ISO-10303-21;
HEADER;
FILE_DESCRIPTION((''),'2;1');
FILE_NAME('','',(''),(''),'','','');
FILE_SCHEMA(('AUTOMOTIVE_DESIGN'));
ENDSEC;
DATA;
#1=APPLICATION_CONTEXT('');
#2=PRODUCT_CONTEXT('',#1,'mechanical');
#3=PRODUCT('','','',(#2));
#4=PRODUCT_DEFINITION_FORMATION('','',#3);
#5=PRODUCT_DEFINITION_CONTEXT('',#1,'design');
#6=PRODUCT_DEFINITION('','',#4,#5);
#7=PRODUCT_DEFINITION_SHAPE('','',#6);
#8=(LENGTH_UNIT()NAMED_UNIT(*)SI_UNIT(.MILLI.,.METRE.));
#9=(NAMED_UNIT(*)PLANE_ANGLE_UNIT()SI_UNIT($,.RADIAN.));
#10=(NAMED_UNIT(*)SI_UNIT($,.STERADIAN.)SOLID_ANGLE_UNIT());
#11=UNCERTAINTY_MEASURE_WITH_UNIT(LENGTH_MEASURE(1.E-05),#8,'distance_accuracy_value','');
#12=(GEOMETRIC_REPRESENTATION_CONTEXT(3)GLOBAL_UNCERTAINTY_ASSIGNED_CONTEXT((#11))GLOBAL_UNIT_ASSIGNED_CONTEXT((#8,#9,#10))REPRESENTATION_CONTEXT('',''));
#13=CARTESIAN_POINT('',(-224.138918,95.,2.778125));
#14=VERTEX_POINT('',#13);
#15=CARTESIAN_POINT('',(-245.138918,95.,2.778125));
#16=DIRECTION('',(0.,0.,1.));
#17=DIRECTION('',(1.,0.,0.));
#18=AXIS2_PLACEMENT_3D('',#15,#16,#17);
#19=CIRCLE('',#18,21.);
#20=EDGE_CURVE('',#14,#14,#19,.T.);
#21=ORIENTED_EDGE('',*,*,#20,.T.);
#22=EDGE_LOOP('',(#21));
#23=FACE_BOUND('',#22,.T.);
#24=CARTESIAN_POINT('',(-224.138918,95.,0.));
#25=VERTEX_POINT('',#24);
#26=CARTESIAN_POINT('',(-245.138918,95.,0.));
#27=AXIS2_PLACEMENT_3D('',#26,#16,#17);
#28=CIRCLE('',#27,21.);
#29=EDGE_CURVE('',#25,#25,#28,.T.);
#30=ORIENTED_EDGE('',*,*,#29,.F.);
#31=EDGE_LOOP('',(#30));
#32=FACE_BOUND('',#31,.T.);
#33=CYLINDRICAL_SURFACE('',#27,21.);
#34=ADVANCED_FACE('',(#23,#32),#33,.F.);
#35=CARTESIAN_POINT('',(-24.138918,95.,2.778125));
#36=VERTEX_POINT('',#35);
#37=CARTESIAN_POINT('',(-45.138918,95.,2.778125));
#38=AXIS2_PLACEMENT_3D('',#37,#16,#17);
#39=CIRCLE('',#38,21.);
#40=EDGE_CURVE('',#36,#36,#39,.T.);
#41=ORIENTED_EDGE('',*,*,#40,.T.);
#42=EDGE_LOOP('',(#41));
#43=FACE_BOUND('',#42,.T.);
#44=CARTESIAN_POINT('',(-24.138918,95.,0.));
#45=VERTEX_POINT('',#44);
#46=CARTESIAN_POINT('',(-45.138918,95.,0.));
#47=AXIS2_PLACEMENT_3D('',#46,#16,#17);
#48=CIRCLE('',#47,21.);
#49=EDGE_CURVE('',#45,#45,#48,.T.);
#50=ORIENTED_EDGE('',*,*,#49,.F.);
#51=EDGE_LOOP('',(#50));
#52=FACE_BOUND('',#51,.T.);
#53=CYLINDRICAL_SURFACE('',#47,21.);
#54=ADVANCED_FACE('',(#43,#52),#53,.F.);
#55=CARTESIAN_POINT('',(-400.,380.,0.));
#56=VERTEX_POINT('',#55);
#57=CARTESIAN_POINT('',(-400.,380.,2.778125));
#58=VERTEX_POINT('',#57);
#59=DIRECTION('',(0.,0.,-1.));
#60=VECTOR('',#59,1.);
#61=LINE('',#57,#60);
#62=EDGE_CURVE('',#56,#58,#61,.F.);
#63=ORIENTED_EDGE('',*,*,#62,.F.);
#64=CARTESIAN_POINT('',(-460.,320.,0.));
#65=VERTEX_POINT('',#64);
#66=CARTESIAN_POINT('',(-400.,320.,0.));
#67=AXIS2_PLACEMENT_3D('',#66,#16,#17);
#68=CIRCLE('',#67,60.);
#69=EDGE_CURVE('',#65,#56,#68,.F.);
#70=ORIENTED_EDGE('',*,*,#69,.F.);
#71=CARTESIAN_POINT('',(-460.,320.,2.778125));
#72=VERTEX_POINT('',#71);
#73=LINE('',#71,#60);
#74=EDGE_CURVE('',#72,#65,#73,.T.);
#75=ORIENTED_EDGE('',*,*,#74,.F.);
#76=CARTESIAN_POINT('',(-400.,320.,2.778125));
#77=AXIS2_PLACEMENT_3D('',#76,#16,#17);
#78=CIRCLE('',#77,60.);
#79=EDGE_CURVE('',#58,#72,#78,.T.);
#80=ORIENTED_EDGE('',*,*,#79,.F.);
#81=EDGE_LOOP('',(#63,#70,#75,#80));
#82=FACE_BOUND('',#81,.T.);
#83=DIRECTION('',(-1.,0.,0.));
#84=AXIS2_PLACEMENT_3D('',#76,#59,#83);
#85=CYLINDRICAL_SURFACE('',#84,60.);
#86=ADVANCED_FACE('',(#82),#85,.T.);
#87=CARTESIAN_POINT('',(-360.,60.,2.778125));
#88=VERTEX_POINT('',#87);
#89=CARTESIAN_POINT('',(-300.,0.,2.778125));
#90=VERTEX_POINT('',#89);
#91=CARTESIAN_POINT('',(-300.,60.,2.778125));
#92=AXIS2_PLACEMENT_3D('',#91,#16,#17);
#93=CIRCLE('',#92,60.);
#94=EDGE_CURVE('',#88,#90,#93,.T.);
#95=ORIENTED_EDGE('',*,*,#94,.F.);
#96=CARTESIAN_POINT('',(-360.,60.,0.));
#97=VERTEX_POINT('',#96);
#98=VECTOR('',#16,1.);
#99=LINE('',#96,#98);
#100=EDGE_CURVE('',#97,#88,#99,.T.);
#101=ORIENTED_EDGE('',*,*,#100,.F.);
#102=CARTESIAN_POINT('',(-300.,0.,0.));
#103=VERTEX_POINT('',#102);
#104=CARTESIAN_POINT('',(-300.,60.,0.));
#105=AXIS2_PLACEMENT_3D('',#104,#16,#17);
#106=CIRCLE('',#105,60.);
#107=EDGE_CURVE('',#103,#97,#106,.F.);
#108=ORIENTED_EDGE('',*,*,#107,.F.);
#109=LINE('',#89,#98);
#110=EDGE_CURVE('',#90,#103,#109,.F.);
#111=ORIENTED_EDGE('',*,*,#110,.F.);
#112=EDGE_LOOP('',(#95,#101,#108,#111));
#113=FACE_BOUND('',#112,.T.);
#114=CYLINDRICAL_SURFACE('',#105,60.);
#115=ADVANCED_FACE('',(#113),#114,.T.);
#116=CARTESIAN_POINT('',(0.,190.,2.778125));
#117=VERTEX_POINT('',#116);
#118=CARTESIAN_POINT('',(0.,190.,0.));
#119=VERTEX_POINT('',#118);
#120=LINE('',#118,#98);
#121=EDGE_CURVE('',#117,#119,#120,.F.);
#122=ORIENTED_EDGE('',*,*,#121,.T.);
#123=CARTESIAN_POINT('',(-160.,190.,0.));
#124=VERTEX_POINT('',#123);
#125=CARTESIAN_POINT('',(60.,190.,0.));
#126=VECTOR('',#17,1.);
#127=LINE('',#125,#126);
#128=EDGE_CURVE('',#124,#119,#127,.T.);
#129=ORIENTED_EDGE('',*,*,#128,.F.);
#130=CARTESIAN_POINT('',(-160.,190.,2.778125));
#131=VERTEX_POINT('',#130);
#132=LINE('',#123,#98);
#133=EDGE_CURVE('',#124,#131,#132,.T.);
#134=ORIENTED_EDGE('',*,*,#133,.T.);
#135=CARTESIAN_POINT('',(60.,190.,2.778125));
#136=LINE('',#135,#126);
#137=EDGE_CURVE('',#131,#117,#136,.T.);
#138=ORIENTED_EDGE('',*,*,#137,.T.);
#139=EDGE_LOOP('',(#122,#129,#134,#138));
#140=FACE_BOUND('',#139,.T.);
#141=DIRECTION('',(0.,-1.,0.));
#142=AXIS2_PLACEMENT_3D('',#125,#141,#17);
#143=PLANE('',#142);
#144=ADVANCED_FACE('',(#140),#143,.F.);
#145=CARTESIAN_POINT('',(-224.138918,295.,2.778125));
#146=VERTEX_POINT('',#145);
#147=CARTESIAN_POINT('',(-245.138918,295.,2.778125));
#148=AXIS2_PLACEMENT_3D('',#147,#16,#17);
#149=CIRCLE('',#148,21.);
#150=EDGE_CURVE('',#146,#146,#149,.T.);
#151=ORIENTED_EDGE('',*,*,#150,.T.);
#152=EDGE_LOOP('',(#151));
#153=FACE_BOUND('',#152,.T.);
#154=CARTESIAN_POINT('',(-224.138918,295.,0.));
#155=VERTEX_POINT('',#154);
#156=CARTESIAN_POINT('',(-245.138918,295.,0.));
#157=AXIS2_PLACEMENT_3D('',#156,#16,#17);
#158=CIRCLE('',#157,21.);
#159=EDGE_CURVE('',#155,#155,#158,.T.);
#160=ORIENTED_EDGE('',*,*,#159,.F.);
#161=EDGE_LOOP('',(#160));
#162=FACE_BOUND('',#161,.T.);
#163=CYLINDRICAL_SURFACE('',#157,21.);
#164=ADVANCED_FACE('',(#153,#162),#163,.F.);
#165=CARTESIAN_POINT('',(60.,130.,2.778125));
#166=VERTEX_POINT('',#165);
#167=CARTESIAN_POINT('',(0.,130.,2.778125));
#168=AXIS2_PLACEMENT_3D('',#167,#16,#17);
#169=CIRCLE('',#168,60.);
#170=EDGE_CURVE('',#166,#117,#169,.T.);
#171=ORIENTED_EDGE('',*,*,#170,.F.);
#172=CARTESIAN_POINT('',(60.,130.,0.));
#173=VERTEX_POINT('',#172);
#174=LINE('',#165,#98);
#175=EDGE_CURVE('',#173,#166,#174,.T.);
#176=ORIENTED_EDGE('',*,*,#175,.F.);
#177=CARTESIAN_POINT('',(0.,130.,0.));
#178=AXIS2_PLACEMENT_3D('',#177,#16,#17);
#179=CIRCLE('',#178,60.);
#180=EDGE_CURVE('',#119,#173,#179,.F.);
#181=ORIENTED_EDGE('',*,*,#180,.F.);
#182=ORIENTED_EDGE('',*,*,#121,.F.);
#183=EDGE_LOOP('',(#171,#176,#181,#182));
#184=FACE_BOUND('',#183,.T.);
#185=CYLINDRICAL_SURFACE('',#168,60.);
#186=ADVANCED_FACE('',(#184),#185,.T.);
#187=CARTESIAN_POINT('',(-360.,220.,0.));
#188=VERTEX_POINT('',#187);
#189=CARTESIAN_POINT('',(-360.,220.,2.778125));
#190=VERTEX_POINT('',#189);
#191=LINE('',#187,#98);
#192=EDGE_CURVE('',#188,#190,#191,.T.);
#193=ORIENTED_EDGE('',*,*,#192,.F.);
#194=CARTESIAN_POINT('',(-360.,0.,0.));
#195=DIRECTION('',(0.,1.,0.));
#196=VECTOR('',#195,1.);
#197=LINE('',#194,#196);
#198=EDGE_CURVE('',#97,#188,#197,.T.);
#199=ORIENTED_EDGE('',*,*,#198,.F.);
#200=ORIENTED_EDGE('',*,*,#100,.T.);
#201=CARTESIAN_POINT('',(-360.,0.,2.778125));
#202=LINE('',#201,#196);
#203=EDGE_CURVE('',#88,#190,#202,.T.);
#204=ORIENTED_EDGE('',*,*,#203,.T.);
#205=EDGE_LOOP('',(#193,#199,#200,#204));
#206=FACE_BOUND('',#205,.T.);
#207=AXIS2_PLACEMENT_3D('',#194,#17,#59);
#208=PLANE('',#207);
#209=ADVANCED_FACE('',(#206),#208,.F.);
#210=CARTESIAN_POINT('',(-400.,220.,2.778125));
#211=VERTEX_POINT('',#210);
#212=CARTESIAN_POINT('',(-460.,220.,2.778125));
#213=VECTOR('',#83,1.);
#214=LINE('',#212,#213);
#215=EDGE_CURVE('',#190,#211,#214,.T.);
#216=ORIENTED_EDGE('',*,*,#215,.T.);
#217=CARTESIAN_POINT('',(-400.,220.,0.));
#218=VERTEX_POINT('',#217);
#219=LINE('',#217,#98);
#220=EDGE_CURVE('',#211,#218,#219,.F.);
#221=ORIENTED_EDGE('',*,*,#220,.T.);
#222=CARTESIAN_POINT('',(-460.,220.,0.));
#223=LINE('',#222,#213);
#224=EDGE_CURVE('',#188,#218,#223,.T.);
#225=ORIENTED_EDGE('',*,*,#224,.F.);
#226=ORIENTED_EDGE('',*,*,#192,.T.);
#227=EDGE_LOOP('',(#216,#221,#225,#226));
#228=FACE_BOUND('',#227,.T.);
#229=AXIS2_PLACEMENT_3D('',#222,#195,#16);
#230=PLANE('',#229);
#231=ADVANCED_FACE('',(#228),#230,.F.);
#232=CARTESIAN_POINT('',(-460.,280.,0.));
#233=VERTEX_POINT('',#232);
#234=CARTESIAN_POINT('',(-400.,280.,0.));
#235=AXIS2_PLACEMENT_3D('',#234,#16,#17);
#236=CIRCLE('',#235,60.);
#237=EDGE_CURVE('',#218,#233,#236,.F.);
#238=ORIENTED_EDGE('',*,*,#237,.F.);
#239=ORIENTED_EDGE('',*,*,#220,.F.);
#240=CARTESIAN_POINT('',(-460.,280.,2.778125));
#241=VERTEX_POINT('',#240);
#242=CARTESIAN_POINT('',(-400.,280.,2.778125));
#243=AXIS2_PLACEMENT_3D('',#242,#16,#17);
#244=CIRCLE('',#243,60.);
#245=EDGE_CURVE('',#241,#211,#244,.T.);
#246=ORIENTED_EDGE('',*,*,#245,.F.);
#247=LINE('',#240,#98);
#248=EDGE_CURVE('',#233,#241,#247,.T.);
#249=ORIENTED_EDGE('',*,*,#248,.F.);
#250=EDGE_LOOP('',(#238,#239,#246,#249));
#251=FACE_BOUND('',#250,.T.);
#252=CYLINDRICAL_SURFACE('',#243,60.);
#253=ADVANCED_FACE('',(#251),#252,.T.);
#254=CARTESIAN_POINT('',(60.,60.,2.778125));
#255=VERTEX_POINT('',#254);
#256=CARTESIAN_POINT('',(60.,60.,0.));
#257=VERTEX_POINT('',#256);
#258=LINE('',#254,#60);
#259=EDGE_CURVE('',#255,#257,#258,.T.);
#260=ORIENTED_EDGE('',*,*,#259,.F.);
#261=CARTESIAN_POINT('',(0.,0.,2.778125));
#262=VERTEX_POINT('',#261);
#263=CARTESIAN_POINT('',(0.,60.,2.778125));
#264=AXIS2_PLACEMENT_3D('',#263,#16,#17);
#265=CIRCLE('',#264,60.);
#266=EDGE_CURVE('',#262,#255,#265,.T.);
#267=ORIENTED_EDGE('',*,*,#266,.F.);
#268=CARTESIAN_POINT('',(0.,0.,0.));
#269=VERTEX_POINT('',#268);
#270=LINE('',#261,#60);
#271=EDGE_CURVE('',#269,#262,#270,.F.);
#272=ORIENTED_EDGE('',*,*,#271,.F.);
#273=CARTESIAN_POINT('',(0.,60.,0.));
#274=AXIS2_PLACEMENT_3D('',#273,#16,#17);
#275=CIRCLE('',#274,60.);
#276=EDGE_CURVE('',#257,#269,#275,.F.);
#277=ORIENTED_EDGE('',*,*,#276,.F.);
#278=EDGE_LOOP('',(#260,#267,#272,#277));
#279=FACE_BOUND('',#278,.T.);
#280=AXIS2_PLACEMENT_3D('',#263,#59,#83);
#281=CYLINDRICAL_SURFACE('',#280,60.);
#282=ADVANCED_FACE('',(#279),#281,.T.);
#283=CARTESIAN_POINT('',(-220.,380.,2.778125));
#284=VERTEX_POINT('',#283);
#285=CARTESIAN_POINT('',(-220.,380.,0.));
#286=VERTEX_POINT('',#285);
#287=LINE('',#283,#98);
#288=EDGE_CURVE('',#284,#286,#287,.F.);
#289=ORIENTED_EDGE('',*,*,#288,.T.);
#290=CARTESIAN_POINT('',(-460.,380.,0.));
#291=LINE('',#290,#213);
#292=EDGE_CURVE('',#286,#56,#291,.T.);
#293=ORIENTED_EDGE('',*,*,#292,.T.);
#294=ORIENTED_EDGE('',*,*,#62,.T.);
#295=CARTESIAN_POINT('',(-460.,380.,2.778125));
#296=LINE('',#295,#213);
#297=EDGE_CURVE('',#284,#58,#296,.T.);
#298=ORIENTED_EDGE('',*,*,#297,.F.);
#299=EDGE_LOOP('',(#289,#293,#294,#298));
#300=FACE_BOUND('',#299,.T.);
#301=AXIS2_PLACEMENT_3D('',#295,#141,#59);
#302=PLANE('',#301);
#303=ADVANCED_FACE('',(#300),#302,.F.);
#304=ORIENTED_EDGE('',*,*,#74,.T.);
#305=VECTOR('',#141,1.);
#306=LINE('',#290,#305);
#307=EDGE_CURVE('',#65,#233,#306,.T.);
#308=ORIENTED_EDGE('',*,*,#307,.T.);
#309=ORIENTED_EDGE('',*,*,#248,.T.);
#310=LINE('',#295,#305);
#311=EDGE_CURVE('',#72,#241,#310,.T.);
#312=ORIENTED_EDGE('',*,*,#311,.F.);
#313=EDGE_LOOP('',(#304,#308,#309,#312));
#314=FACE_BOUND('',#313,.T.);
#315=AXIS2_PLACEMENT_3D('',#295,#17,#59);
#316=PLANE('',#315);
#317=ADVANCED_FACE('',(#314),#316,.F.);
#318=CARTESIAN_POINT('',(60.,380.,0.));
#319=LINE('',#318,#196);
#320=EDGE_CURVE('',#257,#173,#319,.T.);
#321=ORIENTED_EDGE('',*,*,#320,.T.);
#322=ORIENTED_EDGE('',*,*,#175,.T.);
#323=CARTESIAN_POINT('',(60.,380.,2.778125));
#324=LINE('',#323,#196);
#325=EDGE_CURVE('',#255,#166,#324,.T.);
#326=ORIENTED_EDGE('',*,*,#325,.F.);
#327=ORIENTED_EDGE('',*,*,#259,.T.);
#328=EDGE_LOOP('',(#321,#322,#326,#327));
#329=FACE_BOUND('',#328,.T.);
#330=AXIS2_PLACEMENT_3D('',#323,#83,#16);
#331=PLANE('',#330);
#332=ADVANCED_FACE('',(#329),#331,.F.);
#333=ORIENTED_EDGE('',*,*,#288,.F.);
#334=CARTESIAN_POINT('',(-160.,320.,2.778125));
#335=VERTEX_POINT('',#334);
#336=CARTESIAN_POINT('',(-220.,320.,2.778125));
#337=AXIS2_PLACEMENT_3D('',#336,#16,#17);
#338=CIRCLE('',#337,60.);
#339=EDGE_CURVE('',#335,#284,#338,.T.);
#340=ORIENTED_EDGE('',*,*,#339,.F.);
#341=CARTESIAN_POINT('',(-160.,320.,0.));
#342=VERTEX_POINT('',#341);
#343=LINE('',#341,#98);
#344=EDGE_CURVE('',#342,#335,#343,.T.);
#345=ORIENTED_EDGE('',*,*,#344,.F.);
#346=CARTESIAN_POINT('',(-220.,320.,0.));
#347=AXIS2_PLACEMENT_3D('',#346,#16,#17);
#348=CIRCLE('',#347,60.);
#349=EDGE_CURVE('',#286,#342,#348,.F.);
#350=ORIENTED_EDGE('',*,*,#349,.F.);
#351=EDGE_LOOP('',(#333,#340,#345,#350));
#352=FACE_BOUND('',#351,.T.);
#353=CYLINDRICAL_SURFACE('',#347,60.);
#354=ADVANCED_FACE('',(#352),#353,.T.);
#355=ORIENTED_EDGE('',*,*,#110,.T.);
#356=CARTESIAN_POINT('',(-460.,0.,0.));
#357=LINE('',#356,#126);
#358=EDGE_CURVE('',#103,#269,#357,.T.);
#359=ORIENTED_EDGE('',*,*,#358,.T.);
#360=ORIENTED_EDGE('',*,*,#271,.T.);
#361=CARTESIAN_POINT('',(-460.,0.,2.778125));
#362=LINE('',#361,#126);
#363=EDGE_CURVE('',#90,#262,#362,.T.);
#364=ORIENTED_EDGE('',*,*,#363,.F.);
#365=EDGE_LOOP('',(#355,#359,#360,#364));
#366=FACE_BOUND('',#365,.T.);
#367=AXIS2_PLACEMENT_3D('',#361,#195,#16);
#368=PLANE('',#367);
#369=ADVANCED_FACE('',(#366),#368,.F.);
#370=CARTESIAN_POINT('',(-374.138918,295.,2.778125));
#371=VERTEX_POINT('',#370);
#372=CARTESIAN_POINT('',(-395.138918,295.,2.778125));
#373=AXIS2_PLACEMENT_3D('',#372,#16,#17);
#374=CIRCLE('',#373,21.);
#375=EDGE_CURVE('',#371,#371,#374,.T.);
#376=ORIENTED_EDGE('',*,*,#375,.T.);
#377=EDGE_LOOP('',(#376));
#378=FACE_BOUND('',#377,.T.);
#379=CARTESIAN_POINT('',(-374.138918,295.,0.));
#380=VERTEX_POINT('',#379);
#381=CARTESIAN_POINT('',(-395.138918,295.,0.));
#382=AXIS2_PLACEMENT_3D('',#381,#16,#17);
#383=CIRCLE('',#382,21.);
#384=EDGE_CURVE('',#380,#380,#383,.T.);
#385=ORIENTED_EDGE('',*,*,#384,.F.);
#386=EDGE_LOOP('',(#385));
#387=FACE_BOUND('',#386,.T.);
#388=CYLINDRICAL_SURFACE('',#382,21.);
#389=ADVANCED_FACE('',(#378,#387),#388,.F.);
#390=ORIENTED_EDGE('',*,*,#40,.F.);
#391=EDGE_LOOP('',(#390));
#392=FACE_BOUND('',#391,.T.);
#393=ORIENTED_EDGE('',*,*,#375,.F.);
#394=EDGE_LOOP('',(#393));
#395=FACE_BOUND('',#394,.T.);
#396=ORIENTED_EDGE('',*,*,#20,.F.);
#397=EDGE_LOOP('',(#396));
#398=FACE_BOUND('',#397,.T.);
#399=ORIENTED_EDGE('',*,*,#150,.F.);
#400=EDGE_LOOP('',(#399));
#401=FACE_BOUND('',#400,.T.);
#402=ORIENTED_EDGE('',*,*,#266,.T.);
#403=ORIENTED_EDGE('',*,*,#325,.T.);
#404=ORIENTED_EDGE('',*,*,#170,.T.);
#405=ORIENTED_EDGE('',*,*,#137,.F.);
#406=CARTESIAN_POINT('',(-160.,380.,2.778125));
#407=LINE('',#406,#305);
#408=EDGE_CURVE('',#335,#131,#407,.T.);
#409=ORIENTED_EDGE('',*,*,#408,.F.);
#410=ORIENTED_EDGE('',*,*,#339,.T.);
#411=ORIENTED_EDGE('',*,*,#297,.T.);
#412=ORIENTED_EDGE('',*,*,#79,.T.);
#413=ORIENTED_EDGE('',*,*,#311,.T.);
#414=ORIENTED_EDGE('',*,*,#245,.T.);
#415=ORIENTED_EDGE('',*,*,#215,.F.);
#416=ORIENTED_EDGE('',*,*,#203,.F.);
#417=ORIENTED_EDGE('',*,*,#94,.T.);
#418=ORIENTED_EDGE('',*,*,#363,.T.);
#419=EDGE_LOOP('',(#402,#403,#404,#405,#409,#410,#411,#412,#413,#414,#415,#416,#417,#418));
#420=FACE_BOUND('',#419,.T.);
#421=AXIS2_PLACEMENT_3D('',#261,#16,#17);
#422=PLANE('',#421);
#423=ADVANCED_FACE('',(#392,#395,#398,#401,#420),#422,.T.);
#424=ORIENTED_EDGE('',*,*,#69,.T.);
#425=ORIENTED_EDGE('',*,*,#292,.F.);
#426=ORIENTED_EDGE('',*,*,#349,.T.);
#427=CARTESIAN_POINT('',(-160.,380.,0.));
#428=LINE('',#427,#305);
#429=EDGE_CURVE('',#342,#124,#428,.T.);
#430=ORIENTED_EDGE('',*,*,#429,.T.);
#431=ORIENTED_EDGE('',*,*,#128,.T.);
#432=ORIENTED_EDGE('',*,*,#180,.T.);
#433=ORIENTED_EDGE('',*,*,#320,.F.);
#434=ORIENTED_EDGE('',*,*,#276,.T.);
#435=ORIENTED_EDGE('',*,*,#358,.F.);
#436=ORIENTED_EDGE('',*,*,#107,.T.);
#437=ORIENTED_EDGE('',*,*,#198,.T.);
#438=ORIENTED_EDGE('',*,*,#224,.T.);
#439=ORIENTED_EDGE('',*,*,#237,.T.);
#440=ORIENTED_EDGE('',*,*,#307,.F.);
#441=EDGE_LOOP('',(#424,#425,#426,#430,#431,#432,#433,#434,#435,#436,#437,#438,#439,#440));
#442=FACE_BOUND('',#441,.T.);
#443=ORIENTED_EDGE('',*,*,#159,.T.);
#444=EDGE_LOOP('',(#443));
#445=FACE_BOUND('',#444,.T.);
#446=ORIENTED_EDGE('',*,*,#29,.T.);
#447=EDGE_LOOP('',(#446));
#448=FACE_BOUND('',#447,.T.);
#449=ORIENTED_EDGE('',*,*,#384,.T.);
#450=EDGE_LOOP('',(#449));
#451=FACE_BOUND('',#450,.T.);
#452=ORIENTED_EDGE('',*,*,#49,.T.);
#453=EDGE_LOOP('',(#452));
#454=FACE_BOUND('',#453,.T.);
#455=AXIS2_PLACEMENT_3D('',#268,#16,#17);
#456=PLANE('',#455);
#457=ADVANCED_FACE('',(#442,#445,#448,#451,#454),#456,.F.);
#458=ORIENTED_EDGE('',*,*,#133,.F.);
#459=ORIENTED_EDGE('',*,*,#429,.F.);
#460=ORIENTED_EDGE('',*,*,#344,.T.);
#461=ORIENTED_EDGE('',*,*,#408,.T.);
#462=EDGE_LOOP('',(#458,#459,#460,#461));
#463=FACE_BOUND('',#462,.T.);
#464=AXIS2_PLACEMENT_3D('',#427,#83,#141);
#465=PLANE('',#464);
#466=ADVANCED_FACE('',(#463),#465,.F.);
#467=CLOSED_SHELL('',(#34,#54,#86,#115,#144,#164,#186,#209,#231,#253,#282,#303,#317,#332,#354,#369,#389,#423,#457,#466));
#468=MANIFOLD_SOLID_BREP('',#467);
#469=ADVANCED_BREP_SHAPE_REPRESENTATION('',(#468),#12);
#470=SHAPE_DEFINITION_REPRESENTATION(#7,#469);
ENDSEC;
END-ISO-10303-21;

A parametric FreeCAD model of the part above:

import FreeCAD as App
import Part
import Sketcher


def edges_at(feature, points):
    """Names of the edges that pass closest to the given points."""
    edges = feature.Shape.Edges
    near = lambda p: min(range(len(edges)), key=lambda i: edges[i].distToShape(Part.Vertex(*p))[0])
    return sorted({f"Edge{near(p) + 1}" for p in points})


def add_polygon(sketch, points):
    """Adds a closed chain of lines whose ends are joined by coincident constraints."""
    first, n = sketch.GeometryCount, len(points)
    for a, b in zip(points, points[1:] + points[:1]):
        sketch.addGeometry(Part.LineSegment(App.Vector(*a, 0), App.Vector(*b, 0)), False)
    for i in range(n):
        sketch.addConstraint(Sketcher.Constraint("Coincident", first + i, 2, first + (i + 1) % n, 1))

doc = App.newDocument("Part")
body = doc.addObject("PartDesign::Body", "Body")

# Sketch on XY plane
sketch1 = body.newObject("Sketcher::SketchObject", "Sketch")
sketch1.AttachmentSupport = (doc.getObject("XY_Plane"), [""])
sketch1.MapMode = "FlatFace"
add_polygon(sketch1, [(-460, 380), (-460, 0), (60, 0), (60, 380)])  # lines 0-3
sketch1.addConstraint([
    Sketcher.Constraint("Vertical", 0),
    Sketcher.Constraint("Horizontal", 1),
    Sketcher.Constraint("Vertical", 2),
    Sketcher.Constraint("Horizontal", 3),
    Sketcher.Constraint("PointOnObject", 0, 2, -1),
    Sketcher.Constraint("DistanceX", 1, 1, 1, 2, 520.0),
    Sketcher.Constraint("DistanceY", 0, 2, 0, 1, 380.0),
    Sketcher.Constraint("DistanceX", 0, 2, -1, 1, 460.0),
])
pad1 = body.newObject("PartDesign::Pad", "Pad")
pad1.Profile = sketch1
pad1.Length = 2.778125

# Sketch on XY plane
sketch2 = body.newObject("Sketcher::SketchObject", "Sketch001")
sketch2.AttachmentSupport = (doc.getObject("XY_Plane"), [""])
sketch2.MapMode = "FlatFace"
sketch2.AttachmentOffset = App.Placement(App.Vector(0, 0, 2.778125), App.Rotation())
add_polygon(sketch2, [(-160, 380), (-160, 190), (60, 190), (60, 380)])  # lines 0-3
sketch2.addConstraint([
    Sketcher.Constraint("Vertical", 0),
    Sketcher.Constraint("Horizontal", 1),
    Sketcher.Constraint("Vertical", 2),
    Sketcher.Constraint("Horizontal", 3),
    Sketcher.Constraint("DistanceX", 1, 1, 1, 2, 220.0),
    Sketcher.Constraint("DistanceY", 0, 2, 0, 1, 190.0),
    Sketcher.Constraint("DistanceX", 0, 2, -1, 1, 160.0),
    Sketcher.Constraint("DistanceY", -1, 1, 0, 2, 190.0),
])
pocket1 = body.newObject("PartDesign::Pocket", "Pocket")
pocket1.Profile = sketch2
pocket1.Length = 2.778125

# Sketch on XY plane
sketch3 = body.newObject("Sketcher::SketchObject", "Sketch002")
sketch3.AttachmentSupport = (doc.getObject("XY_Plane"), [""])
sketch3.MapMode = "FlatFace"
sketch3.AttachmentOffset = App.Placement(App.Vector(0, 0, 2.778125), App.Rotation())
add_polygon(sketch3, [(-460, 220), (-460, 0), (-360, 0), (-360, 220)])  # lines 0-3
sketch3.addConstraint([
    Sketcher.Constraint("Vertical", 0),
    Sketcher.Constraint("Horizontal", 1),
    Sketcher.Constraint("Vertical", 2),
    Sketcher.Constraint("Horizontal", 3),
    Sketcher.Constraint("PointOnObject", 0, 2, -1),
    Sketcher.Constraint("DistanceX", 1, 1, 1, 2, 100.0),
    Sketcher.Constraint("DistanceY", 0, 2, 0, 1, 220.0),
    Sketcher.Constraint("DistanceX", 0, 2, -1, 1, 460.0),
])
pocket2 = body.newObject("PartDesign::Pocket", "Pocket001")
pocket2.Profile = sketch3
pocket2.Length = 2.778125
doc.recompute()

fillet = body.newObject("PartDesign::Fillet", "Fillet")
fillet.Base = (pocket2, edges_at(pocket2, [(-460, 220, 1.389), (-460, 380, 1.389)]))
fillet.Radius = 60
doc.recompute()

fillet2 = body.newObject("PartDesign::Fillet", "Fillet001")
fillet2.Base = (fillet, edges_at(fillet, [
    (60, 190, 1.389),
    (-160, 380, 1.389),
    (-360, 0, 1.389),
    (60, 0, 1.389),
]))
fillet2.Radius = 60

# Sketch on XY plane
sketch4 = body.newObject("Sketcher::SketchObject", "Sketch003")
sketch4.AttachmentSupport = (doc.getObject("XY_Plane"), [""])
sketch4.MapMode = "FlatFace"
sketch4.AttachmentOffset = App.Placement(App.Vector(0, 0, 2.778125), App.Rotation())
sketch4.addGeometry([
    Part.Circle(App.Vector(-395, 295, 0), App.Vector(0, 0, 1), 21),
    Part.Circle(App.Vector(-245, 295, 0), App.Vector(0, 0, 1), 21),
    Part.Circle(App.Vector(-245, 95, 0), App.Vector(0, 0, 1), 21),
    Part.Circle(App.Vector(-45, 95, 0), App.Vector(0, 0, 1), 21),
], False)
sketch4.addConstraint([
    Sketcher.Constraint("Equal", 0, 1),
    Sketcher.Constraint("Equal", 1, 2),
    Sketcher.Constraint("Equal", 2, 3),
    Sketcher.Constraint("Horizontal", 0, 3, 1, 3),
    Sketcher.Constraint("Horizontal", 2, 3, 3, 3),
    Sketcher.Constraint("Vertical", 1, 3, 2, 3),
    Sketcher.Constraint("Diameter", 0, 42.0),
    Sketcher.Constraint("DistanceY", -1, 1, 0, 3, 295.0),
    Sketcher.Constraint("DistanceY", -1, 1, 2, 3, 95.0),
    Sketcher.Constraint("DistanceX", 0, 3, 1, 3, 150.0),
    Sketcher.Constraint("DistanceX", 2, 3, 3, 3, 200.0),
    Sketcher.Constraint("DistanceX", 0, 3, -1, 1, 395.138918),
])
pocket3 = body.newObject("PartDesign::Pocket", "Pocket002")
pocket3.Profile = sketch4
pocket3.Length = 2.778125

doc.recompute()
